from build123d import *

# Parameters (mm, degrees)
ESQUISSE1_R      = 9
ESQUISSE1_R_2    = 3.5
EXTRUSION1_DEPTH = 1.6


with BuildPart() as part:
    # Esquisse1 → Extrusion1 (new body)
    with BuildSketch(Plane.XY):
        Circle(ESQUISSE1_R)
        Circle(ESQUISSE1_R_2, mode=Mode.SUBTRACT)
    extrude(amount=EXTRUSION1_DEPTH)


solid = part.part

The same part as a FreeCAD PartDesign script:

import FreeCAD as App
import Part
import Sketcher

V = App.Vector
Q = App.Units.Quantity

doc = App.newDocument("Part")
body = doc.addObject("PartDesign::Body", "Body")

# Sketch on XY plane
sketch1 = body.newObject("Sketcher::SketchObject", "Sketch")
sketch1.AttachmentSupport = (doc.getObject("XY_Plane"), [""])
sketch1.MapMode = "FlatFace"
sketch1.addGeometry([
    Part.Circle(V(0, 0, 0), V(0, 0, 1), 9),
    Part.Circle(V(0, 0, 0), V(0, 0, 1), 3.5),
], False)
sketch1.addConstraint([
    Sketcher.Constraint("Coincident", 0, 3, -1, 1),
    Sketcher.Constraint("Coincident", 1, 3, -1, 1),
    Sketcher.Constraint("Diameter", 0, Q("18 mm")),
    Sketcher.Constraint("Diameter", 1, Q("7 mm")),
])
pad1 = body.newObject("PartDesign::Pad", "Pad")
pad1.Profile = sketch1
pad1.Length = 1.6

doc.recompute()
